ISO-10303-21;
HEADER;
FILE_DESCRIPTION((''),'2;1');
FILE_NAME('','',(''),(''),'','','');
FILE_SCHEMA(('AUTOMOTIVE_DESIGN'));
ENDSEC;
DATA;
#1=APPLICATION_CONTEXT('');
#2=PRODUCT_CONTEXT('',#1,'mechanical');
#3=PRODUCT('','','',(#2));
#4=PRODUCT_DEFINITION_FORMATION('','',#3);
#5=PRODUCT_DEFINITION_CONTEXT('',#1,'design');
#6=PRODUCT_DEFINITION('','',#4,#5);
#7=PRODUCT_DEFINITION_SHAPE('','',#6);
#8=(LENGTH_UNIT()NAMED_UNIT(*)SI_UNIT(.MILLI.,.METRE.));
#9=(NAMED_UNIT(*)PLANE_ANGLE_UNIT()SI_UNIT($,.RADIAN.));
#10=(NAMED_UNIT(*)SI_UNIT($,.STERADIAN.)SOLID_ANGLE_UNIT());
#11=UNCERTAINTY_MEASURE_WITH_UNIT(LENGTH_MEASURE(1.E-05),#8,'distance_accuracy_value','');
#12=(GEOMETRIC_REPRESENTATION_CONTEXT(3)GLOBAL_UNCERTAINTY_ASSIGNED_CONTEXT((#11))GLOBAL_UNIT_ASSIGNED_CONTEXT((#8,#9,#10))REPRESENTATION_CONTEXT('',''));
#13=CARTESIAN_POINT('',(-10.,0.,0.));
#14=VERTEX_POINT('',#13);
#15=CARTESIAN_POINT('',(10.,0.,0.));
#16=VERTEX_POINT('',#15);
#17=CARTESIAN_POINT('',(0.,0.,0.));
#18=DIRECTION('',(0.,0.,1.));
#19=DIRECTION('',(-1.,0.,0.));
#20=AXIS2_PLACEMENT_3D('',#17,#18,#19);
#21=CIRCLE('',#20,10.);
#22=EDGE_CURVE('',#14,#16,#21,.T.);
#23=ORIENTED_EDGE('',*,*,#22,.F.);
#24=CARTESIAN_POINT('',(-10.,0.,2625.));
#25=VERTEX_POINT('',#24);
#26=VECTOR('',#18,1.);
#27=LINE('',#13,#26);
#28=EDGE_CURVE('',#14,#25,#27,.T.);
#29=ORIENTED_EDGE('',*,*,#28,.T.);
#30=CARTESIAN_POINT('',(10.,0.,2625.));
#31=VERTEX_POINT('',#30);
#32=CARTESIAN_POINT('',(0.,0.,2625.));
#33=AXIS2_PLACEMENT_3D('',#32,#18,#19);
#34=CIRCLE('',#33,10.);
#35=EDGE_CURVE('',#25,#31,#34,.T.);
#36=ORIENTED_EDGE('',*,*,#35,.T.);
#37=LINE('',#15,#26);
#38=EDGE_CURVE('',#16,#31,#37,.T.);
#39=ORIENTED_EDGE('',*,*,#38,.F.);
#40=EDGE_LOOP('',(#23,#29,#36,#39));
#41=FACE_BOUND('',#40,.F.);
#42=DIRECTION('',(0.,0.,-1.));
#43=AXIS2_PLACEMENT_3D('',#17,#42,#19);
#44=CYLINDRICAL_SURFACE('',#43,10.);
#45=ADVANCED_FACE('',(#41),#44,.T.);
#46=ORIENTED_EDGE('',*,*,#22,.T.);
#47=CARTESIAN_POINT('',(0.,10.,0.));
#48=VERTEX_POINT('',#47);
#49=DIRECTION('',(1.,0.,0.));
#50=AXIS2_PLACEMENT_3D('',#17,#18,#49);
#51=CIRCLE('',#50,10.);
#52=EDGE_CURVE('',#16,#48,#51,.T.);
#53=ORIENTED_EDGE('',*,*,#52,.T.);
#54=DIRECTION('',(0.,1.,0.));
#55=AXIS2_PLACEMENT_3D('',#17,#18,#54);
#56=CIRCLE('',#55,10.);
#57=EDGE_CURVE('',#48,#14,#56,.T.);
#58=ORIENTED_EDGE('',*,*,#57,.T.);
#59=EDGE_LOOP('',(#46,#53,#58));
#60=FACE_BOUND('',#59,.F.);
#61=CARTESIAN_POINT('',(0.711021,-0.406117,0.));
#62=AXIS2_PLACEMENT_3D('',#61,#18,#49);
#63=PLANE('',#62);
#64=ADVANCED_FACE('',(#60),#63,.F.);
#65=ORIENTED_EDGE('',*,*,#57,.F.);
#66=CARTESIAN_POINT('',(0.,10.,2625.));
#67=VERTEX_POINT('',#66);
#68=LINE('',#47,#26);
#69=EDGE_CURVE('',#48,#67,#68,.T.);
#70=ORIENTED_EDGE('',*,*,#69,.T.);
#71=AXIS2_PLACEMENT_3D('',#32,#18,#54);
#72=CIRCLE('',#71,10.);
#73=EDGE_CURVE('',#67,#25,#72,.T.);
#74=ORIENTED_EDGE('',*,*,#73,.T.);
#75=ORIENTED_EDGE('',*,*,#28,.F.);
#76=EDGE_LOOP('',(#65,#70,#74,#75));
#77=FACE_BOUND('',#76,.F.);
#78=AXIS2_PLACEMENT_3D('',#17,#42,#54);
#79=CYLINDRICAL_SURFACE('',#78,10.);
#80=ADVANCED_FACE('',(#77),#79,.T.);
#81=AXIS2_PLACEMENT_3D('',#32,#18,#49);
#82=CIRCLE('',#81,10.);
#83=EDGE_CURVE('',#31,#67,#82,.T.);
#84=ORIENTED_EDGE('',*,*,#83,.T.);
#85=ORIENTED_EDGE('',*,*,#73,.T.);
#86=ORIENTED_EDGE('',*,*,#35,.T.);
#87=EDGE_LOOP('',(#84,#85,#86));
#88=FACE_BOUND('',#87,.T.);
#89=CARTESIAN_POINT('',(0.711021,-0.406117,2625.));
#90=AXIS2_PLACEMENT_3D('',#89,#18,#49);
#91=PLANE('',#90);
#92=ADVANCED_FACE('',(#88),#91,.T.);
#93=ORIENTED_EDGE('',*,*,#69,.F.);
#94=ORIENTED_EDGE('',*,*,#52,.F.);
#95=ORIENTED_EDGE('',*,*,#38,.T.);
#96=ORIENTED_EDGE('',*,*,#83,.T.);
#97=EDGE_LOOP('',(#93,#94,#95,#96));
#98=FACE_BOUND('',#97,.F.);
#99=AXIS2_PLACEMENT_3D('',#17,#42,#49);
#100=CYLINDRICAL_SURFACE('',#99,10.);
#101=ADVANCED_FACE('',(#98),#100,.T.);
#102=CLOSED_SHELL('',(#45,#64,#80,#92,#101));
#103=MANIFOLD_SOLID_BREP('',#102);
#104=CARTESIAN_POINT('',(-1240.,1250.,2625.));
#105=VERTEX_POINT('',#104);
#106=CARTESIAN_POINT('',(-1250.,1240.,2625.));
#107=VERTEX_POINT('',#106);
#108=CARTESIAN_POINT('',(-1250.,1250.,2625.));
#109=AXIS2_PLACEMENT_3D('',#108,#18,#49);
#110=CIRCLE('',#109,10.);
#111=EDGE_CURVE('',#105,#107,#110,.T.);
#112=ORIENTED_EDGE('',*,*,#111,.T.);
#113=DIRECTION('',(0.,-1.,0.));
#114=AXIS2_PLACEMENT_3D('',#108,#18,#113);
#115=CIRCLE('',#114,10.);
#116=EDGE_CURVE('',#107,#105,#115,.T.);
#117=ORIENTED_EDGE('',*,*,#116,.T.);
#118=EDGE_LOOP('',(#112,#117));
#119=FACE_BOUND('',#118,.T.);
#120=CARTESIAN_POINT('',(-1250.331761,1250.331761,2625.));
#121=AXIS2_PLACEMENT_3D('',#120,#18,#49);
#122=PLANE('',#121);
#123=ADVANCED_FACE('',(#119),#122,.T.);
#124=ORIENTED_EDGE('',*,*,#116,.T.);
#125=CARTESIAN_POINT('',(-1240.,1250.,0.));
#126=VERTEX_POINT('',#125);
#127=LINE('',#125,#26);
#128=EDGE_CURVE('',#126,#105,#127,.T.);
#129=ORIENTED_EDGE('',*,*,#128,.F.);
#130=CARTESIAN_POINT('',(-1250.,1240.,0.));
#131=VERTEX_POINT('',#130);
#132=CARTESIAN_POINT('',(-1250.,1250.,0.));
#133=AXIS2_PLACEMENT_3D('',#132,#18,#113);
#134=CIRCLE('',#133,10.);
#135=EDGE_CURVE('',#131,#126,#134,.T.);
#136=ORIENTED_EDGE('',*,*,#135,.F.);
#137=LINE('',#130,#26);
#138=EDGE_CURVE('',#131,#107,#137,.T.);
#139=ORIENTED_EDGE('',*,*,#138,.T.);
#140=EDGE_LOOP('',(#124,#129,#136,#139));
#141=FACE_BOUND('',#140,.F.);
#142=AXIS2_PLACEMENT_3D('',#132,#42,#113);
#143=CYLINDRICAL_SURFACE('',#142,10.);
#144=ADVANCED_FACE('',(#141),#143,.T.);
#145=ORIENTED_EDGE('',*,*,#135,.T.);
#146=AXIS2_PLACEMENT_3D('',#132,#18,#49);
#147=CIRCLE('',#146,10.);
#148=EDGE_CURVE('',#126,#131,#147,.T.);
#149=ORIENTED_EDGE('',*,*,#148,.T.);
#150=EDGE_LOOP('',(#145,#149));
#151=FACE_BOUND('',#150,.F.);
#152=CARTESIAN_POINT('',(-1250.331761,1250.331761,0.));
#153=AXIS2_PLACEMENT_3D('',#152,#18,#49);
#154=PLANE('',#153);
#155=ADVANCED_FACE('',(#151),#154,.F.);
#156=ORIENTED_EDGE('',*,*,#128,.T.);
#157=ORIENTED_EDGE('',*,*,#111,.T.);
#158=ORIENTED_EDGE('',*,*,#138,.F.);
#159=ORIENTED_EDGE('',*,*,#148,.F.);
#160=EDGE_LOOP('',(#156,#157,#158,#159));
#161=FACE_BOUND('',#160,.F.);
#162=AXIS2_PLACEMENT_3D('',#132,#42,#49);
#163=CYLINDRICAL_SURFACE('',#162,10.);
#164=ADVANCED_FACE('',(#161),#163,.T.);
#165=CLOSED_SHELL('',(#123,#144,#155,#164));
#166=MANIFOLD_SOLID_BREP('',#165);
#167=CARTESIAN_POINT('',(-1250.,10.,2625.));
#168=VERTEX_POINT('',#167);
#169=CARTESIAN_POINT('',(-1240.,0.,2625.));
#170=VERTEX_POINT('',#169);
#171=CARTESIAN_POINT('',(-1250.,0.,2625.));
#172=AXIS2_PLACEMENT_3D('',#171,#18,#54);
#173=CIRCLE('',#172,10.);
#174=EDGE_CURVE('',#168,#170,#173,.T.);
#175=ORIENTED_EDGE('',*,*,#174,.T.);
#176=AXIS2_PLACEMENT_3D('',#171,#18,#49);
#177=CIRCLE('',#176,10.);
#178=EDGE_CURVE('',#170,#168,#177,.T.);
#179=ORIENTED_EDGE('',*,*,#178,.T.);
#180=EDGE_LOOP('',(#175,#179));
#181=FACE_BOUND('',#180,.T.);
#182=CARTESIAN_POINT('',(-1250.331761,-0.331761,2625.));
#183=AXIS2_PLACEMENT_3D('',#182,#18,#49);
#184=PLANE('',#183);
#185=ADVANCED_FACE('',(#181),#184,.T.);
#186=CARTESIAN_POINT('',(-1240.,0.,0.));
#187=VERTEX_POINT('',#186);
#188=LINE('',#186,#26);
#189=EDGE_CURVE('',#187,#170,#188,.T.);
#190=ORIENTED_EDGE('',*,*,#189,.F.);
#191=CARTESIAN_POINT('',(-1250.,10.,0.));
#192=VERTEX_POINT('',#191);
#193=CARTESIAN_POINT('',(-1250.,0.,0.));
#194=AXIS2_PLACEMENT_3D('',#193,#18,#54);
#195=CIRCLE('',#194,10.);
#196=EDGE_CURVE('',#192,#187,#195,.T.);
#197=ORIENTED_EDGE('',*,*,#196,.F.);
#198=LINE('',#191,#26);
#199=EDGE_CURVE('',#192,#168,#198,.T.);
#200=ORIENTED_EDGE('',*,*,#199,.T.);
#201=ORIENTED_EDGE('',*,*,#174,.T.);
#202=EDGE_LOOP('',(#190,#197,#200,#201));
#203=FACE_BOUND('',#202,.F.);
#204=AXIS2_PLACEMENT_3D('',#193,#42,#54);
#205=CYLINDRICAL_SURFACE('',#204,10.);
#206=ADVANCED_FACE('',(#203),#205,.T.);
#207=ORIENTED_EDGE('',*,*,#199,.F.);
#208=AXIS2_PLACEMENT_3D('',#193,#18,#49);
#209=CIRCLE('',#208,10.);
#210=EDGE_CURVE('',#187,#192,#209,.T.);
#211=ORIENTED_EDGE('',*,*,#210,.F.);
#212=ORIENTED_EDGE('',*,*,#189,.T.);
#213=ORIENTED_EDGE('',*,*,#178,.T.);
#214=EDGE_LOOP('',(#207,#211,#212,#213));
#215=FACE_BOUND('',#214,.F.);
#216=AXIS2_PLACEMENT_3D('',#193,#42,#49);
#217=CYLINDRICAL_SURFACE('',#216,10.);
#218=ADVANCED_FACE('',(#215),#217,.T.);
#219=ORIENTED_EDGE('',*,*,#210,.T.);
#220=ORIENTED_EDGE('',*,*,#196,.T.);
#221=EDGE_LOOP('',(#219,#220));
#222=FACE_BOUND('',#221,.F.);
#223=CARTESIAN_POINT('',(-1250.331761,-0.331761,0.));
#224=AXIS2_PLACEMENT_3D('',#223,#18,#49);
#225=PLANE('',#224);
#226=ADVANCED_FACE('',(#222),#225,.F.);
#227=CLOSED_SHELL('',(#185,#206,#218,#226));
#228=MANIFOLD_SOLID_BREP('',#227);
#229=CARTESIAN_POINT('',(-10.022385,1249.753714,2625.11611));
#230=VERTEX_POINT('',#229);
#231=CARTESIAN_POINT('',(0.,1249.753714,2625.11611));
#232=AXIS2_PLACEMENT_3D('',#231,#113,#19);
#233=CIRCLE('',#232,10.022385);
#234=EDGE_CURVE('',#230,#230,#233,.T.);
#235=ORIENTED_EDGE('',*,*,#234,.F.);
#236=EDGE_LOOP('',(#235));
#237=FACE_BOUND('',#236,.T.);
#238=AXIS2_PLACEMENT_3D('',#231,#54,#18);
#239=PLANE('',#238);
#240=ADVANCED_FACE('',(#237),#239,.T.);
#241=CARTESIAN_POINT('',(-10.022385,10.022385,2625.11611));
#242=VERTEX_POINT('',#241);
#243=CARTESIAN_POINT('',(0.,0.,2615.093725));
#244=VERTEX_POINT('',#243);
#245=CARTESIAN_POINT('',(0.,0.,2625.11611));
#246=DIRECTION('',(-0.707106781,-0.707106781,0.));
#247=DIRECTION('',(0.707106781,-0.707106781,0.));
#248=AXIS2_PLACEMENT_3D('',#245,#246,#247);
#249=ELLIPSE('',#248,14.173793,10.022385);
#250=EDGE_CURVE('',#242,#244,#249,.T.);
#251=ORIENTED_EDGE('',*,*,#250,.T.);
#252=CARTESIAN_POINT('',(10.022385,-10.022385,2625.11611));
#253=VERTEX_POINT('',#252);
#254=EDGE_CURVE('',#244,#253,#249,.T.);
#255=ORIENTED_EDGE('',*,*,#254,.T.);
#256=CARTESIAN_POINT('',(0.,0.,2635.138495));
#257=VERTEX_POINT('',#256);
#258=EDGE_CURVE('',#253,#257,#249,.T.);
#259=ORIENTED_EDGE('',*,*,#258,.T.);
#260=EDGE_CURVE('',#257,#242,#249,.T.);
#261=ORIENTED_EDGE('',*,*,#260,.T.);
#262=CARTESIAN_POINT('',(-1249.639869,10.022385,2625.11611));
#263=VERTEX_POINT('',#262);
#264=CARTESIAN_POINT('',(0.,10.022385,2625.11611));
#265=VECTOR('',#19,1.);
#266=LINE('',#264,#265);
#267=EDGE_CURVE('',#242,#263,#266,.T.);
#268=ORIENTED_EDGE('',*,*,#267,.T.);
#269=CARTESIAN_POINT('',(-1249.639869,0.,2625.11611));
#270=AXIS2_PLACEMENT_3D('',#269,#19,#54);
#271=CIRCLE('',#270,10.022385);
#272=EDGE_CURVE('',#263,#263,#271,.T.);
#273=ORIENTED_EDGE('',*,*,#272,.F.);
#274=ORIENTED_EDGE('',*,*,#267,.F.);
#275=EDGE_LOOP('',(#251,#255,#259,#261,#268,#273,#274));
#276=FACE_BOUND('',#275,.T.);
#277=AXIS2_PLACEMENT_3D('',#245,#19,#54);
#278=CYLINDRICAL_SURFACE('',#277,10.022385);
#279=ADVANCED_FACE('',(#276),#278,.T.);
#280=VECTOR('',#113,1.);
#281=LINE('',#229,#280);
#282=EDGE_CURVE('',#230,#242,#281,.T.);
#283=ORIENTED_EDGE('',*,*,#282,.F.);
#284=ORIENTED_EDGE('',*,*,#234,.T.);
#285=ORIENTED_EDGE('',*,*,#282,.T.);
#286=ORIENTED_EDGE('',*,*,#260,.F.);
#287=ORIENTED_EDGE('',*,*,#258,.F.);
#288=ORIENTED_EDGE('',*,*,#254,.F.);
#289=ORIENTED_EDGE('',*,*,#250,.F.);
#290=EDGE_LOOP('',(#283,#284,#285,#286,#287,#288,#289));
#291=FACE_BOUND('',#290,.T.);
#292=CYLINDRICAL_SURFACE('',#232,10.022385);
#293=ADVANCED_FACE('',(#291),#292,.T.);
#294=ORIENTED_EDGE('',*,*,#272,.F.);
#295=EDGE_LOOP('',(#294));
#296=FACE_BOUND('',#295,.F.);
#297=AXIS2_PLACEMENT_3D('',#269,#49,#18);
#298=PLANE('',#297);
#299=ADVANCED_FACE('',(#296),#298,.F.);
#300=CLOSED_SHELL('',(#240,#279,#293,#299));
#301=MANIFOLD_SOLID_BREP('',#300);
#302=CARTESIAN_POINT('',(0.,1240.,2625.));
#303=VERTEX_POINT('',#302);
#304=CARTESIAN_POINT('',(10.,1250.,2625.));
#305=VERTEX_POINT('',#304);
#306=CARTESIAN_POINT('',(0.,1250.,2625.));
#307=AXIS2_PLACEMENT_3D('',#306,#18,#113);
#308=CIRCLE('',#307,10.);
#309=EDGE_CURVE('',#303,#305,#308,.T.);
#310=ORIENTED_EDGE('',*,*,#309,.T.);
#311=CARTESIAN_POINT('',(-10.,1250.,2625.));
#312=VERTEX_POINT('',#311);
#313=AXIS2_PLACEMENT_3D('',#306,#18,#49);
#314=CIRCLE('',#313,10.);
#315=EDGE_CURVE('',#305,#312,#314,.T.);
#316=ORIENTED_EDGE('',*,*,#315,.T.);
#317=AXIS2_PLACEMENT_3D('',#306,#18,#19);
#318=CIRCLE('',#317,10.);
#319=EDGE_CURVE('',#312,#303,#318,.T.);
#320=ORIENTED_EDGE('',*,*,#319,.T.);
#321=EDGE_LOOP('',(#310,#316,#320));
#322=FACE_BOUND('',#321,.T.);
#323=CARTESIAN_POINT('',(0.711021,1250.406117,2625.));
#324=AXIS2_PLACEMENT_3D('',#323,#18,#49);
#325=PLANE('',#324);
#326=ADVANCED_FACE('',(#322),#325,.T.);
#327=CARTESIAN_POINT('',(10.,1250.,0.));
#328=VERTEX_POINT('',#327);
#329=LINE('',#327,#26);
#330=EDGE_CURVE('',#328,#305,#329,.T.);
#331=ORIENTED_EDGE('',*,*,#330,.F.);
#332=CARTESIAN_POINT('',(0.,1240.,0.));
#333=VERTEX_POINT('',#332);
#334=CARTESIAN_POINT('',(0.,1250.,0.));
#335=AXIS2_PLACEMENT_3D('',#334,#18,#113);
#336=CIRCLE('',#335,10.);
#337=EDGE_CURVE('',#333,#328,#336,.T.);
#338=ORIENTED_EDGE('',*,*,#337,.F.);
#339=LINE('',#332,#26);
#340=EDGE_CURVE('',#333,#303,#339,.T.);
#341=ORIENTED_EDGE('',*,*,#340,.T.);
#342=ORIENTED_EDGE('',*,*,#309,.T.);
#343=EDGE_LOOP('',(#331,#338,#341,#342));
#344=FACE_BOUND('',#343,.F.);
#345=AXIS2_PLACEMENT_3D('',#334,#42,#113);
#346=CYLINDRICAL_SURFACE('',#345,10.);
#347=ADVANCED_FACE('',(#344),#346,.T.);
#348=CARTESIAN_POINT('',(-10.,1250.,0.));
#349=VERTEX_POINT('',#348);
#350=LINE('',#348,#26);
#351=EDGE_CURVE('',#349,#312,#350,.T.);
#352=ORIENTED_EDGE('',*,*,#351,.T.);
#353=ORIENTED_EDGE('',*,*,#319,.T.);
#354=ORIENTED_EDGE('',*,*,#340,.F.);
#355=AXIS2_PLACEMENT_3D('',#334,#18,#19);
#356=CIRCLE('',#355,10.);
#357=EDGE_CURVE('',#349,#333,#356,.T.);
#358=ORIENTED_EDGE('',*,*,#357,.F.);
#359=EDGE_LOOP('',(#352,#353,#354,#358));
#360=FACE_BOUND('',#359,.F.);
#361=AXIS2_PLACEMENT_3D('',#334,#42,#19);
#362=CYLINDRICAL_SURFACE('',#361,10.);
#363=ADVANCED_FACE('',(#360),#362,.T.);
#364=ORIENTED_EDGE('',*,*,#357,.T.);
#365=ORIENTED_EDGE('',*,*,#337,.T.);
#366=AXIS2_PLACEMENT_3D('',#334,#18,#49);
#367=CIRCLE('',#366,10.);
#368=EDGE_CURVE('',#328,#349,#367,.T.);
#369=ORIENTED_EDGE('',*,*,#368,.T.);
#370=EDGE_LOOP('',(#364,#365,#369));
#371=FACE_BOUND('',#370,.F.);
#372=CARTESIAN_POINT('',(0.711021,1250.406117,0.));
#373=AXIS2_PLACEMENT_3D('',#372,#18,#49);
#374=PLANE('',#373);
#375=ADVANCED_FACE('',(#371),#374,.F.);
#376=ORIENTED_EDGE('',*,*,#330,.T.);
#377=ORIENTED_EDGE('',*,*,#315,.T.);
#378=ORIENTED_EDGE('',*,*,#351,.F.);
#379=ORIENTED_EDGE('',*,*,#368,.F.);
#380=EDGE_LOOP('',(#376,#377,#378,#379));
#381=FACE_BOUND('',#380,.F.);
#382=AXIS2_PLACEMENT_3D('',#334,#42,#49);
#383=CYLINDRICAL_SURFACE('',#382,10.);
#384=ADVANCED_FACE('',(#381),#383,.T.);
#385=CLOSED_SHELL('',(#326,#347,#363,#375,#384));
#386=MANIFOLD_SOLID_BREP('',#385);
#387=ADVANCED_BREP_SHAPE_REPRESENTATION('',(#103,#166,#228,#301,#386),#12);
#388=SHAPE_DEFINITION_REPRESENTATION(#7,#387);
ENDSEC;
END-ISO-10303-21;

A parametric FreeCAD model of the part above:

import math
import FreeCAD as App
import Part
import Sketcher
from FreeCAD import Vector
Q = App.Units.Quantity

doc = App.newDocument("Part")
body = doc.addObject("PartDesign::Body", "Body")

# Sketch on XY plane
sketch1 = body.newObject("Sketcher::SketchObject", "Sketch")
sketch1.AttachmentSupport = (doc.getObject("XY_Plane"), [""])
sketch1.MapMode = "FlatFace"
sketch1.addGeometry([
    Part.ArcOfCircle(Part.Circle(Vector(0, 1250, 0), Vector(0, 0, 1), 10), math.radians(-90), math.radians(0)),
    Part.ArcOfCircle(Part.Circle(Vector(0, 1250, 0), Vector(0, 0, 1), 10), math.radians(0), math.radians(180)),
    Part.ArcOfCircle(Part.Circle(Vector(0, 1250, 0), Vector(0, 0, 1), 10), math.radians(180), math.radians(270)),
], False)
sketch1.addConstraint([
    Sketcher.Constraint("Tangent", 0, 2, 1, 1),
    Sketcher.Constraint("Tangent", 1, 2, 2, 1),
    Sketcher.Constraint("Tangent", 2, 2, 0, 1),
    Sketcher.Constraint("Symmetric", 0, 2, 1, 2, -2),
    Sketcher.Constraint("PointOnObject", 2, 2, -2),
    Sketcher.Constraint("Horizontal", 2, 3, 0, 2),
    Sketcher.Constraint("Radius", 0, Q("10 mm")),
    Sketcher.Constraint("DistanceY", -1, 1, 0, 3, Q("1250 mm")),
])
pad1 = body.newObject("PartDesign::Pad", "Pad")
pad1.Profile = sketch1
pad1.Length = 2625
body2 = doc.addObject("PartDesign::Body", "Body001")

# Sketch on XY plane
sketch2 = body2.newObject("Sketcher::SketchObject", "Sketch001")
sketch2.AttachmentSupport = (doc.getObject("XY_Plane001"), [""])
sketch2.MapMode = "FlatFace"
sketch2.addGeometry([
    Part.ArcOfCircle(Part.Circle(Vector(-1250, 1250, 0), Vector(0, 0, 1), 10), math.radians(0), math.radians(270)),
    Part.ArcOfCircle(Part.Circle(Vector(-1250, 1250, 0), Vector(0, 0, 1), 10), math.radians(-90), math.radians(0)),
], False)
sketch2.addConstraint([
    Sketcher.Constraint("Tangent", 0, 1, 1, 2),
    Sketcher.Constraint("Coincident", 1, 1, 0, 2),
    Sketcher.Constraint("Horizontal", 1, 3, 0, 1),
    Sketcher.Constraint("Vertical", 0, 3, 1, 1),
    Sketcher.Constraint("Radius", 0, Q("10 mm")),
    Sketcher.Constraint("DistanceX", 0, 3, -1, 1, Q("1250 mm")),
    Sketcher.Constraint("DistanceY", -1, 1, 0, 3, Q("1250 mm")),
])
pad2 = body2.newObject("PartDesign::Pad", "Pad001")
pad2.Profile = sketch2
pad2.Length = 2625
body3 = doc.addObject("PartDesign::Body", "Body002")

# Sketch on XY plane
sketch3 = body3.newObject("Sketcher::SketchObject", "Sketch002")
sketch3.AttachmentSupport = (doc.getObject("XY_Plane002"), [""])
sketch3.MapMode = "FlatFace"
sketch3.addGeometry([
    Part.ArcOfCircle(Part.Circle(Vector(-1250, 0, 0), Vector(0, 0, 1), 10), math.radians(90), math.radians(360)),
    Part.ArcOfCircle(Part.Circle(Vector(-1250, 0, 0), Vector(0, 0, 1), 10), math.radians(0), math.radians(90)),
], False)
sketch3.addConstraint([
    Sketcher.Constraint("Tangent", 0, 1, 1, 2),
    Sketcher.Constraint("Coincident", 1, 1, 0, 2),
    Sketcher.Constraint("PointOnObject", 0, 3, -1),
    Sketcher.Constraint("PointOnObject", 1, 1, -1),
    Sketcher.Constraint("Vertical", 1, 3, 0, 1),
    Sketcher.Constraint("Radius", 0, Q("10 mm")),
    Sketcher.Constraint("DistanceX", 0, 3, -1, 1, Q("1250 mm")),
])
pad3 = body3.newObject("PartDesign::Pad", "Pad002")
pad3.Profile = sketch3
pad3.Length = 2625
body4 = doc.addObject("PartDesign::Body", "Body003")

# Sketch on XY plane
sketch4 = body4.newObject("Sketcher::SketchObject", "Sketch003")
sketch4.AttachmentSupport = (doc.getObject("XY_Plane003"), [""])
sketch4.MapMode = "FlatFace"
sketch4.addGeometry([
    Part.ArcOfCircle(Part.Circle(Vector(0, 0, 0), Vector(0, 0, 1), 10), math.radians(180), math.radians(360)),
    Part.ArcOfCircle(Part.Circle(Vector(0, 0, 0), Vector(0, 0, 1), 10), math.radians(0), math.radians(90)),
    Part.ArcOfCircle(Part.Circle(Vector(0, 0, 0), Vector(0, 0, 1), 10), math.radians(90), math.radians(180)),
], False)
sketch4.addConstraint([
    Sketcher.Constraint("Tangent", 0, 2, 1, 1),
    Sketcher.Constraint("Tangent", 1, 2, 2, 1),
    Sketcher.Constraint("Tangent", 2, 2, 0, 1),
    Sketcher.Constraint("Coincident", 0, 3, -1, 1),
    Sketcher.Constraint("PointOnObject", 0, 2, -1),
    Sketcher.Constraint("PointOnObject", 1, 2, -2),
    Sketcher.Constraint("PointOnObject", 2, 2, -1),
    Sketcher.Constraint("Radius", 0, Q("10 mm")),
])
pad4 = body4.newObject("PartDesign::Pad", "Pad003")
pad4.Profile = sketch4
pad4.Length = 2625
body5 = doc.addObject("PartDesign::Body", "Body004")

# Sketch on XZ plane
sketch5 = body5.newObject("Sketcher::SketchObject", "Sketch004")
sketch5.AttachmentSupport = (doc.getObject("XZ_Plane004"), [""])
sketch5.MapMode = "FlatFace"
sketch5.addGeometry(Part.Circle(Vector(0, 2625, 0), Vector(0, 0, 1), 10), False)
sketch5.addConstraint([
    Sketcher.Constraint("PointOnObject", 0, 3, -2),
    Sketcher.Constraint("Diameter", 0, Q("20.044771 mm")),
    Sketcher.Constraint("DistanceY", -1, 1, 0, 3, Q("2625.11611 mm")),
])

# Sketch on XY plane
sketch6 = body5.newObject("Sketcher::SketchObject", "Sketch005")
sketch6.AttachmentSupport = (doc.getObject("XY_Plane004"), [""])
sketch6.MapMode = "FlatFace"
sketch6.AttachmentOffset = App.Placement(Vector(0, 0, 2625), App.Rotation())
sketch6.addGeometry([
    Part.LineSegment(Vector(0, 1250, 0), Vector(0, 0, 0)),
    Part.LineSegment(Vector(0, 0, 0), Vector(-1250, 0, 0)),
], False)
sketch6.addConstraint([
    Sketcher.Constraint("Coincident", 0, 2, 1, 1),
    Sketcher.Constraint("Vertical", 0),
    Sketcher.Constraint("Horizontal", 1),
    Sketcher.Constraint("Coincident", 0, 2, -1, 1),
    Sketcher.Constraint("DistanceX", 1, 2, 1, 1, Q("1249.639869 mm")),
    Sketcher.Constraint("DistanceY", 0, 2, 0, 1, Q("1249.753714 mm")),
])
doc.recompute()

additivepipe = body5.newObject("PartDesign::AdditivePipe", "AdditivePipe")
additivepipe.Profile = sketch5
additivepipe.Spine = (sketch6, ["Edge1", "Edge2"])
additivepipe.Transition = "Right corner"

doc.recompute()
